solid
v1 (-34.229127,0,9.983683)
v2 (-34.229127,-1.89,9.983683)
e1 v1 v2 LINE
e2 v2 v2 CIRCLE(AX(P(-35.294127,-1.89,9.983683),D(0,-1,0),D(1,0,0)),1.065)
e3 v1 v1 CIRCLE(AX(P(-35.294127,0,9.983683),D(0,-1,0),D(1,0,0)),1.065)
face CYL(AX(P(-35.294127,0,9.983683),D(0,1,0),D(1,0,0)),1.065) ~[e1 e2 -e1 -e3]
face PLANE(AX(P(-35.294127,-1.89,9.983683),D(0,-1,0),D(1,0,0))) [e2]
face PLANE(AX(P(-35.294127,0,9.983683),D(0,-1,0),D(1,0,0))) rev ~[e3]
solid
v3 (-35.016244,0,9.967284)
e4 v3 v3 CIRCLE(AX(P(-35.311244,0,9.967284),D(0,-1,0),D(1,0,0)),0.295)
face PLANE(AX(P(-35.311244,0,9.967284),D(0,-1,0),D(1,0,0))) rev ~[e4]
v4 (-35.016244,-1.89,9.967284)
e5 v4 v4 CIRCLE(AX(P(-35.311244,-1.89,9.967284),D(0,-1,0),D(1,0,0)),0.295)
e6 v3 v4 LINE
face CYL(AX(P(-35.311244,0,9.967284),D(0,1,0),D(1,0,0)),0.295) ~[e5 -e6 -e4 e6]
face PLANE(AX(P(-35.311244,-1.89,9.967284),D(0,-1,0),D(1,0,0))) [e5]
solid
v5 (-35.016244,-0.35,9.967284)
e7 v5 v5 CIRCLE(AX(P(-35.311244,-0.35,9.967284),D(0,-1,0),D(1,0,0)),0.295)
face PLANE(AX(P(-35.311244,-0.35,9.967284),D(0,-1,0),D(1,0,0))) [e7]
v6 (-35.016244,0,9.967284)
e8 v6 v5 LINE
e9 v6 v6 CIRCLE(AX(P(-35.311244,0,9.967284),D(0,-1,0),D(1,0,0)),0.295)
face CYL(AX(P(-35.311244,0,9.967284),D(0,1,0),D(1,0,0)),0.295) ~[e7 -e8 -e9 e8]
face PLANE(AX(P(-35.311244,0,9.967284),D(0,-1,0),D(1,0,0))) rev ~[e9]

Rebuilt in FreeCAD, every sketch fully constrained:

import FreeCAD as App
import Part
import Sketcher

V = App.Vector

doc = App.newDocument("Part")
body = doc.addObject("PartDesign::Body", "Body")

# Sketch on XZ plane
sketch1 = body.newObject("Sketcher::SketchObject", "Sketch")
sketch1.AttachmentSupport = (doc.getObject("XZ_Plane"), [""])
sketch1.MapMode = "FlatFace"
sketch1.addGeometry(Part.Circle(V(-35.31, 9.97, 0), V(0, 0, 1), 0.29), False)
sketch1.addConstraint([
    Sketcher.Constraint("Diameter", 0, 0.59),
    Sketcher.Constraint("DistanceX", 0, 3, -1, 1, 35.311244),
    Sketcher.Constraint("DistanceY", -1, 1, 0, 3, 9.967284),
])
pad1 = body.newObject("PartDesign::Pad", "Pad")
pad1.Profile = sketch1
pad1.Length = 1.89
body2 = doc.addObject("PartDesign::Body", "Body001")

# Sketch on XZ plane
sketch2 = body2.newObject("Sketcher::SketchObject", "Sketch001")
sketch2.AttachmentSupport = (doc.getObject("XZ_Plane001"), [""])
sketch2.MapMode = "FlatFace"
sketch2.addGeometry(Part.Circle(V(-35.3, 10, 0), V(0, 0, 1), 1.1), False)
sketch2.addConstraint([
    Sketcher.Constraint("Diameter", 0, 2.13),
    Sketcher.Constraint("DistanceX", 0, 3, -1, 1, 35.294127),
    Sketcher.Constraint("DistanceY", -1, 1, 0, 3, 9.983683),
])
pad2 = body2.newObject("PartDesign::Pad", "Pad001")
pad2.Profile = sketch2
pad2.Length = 1.89
body3 = doc.addObject("PartDesign::Body", "Body002")

# Sketch on XZ plane
sketch3 = body3.newObject("Sketcher::SketchObject", "Sketch002")
sketch3.AttachmentSupport = (doc.getObject("XZ_Plane002"), [""])
sketch3.MapMode = "FlatFace"
sketch3.addGeometry(Part.Circle(V(-35.31, 9.97, 0), V(0, 0, 1), 0.29), False)
sketch3.addConstraint([
    Sketcher.Constraint("Diameter", 0, 0.59),
    Sketcher.Constraint("DistanceX", 0, 3, -1, 1, 35.311244),
    Sketcher.Constraint("DistanceY", -1, 1, 0, 3, 9.967284),
])
pad3 = body3.newObject("PartDesign::Pad", "Pad002")
pad3.Profile = sketch3
pad3.Length = 0.35

doc.recompute()
